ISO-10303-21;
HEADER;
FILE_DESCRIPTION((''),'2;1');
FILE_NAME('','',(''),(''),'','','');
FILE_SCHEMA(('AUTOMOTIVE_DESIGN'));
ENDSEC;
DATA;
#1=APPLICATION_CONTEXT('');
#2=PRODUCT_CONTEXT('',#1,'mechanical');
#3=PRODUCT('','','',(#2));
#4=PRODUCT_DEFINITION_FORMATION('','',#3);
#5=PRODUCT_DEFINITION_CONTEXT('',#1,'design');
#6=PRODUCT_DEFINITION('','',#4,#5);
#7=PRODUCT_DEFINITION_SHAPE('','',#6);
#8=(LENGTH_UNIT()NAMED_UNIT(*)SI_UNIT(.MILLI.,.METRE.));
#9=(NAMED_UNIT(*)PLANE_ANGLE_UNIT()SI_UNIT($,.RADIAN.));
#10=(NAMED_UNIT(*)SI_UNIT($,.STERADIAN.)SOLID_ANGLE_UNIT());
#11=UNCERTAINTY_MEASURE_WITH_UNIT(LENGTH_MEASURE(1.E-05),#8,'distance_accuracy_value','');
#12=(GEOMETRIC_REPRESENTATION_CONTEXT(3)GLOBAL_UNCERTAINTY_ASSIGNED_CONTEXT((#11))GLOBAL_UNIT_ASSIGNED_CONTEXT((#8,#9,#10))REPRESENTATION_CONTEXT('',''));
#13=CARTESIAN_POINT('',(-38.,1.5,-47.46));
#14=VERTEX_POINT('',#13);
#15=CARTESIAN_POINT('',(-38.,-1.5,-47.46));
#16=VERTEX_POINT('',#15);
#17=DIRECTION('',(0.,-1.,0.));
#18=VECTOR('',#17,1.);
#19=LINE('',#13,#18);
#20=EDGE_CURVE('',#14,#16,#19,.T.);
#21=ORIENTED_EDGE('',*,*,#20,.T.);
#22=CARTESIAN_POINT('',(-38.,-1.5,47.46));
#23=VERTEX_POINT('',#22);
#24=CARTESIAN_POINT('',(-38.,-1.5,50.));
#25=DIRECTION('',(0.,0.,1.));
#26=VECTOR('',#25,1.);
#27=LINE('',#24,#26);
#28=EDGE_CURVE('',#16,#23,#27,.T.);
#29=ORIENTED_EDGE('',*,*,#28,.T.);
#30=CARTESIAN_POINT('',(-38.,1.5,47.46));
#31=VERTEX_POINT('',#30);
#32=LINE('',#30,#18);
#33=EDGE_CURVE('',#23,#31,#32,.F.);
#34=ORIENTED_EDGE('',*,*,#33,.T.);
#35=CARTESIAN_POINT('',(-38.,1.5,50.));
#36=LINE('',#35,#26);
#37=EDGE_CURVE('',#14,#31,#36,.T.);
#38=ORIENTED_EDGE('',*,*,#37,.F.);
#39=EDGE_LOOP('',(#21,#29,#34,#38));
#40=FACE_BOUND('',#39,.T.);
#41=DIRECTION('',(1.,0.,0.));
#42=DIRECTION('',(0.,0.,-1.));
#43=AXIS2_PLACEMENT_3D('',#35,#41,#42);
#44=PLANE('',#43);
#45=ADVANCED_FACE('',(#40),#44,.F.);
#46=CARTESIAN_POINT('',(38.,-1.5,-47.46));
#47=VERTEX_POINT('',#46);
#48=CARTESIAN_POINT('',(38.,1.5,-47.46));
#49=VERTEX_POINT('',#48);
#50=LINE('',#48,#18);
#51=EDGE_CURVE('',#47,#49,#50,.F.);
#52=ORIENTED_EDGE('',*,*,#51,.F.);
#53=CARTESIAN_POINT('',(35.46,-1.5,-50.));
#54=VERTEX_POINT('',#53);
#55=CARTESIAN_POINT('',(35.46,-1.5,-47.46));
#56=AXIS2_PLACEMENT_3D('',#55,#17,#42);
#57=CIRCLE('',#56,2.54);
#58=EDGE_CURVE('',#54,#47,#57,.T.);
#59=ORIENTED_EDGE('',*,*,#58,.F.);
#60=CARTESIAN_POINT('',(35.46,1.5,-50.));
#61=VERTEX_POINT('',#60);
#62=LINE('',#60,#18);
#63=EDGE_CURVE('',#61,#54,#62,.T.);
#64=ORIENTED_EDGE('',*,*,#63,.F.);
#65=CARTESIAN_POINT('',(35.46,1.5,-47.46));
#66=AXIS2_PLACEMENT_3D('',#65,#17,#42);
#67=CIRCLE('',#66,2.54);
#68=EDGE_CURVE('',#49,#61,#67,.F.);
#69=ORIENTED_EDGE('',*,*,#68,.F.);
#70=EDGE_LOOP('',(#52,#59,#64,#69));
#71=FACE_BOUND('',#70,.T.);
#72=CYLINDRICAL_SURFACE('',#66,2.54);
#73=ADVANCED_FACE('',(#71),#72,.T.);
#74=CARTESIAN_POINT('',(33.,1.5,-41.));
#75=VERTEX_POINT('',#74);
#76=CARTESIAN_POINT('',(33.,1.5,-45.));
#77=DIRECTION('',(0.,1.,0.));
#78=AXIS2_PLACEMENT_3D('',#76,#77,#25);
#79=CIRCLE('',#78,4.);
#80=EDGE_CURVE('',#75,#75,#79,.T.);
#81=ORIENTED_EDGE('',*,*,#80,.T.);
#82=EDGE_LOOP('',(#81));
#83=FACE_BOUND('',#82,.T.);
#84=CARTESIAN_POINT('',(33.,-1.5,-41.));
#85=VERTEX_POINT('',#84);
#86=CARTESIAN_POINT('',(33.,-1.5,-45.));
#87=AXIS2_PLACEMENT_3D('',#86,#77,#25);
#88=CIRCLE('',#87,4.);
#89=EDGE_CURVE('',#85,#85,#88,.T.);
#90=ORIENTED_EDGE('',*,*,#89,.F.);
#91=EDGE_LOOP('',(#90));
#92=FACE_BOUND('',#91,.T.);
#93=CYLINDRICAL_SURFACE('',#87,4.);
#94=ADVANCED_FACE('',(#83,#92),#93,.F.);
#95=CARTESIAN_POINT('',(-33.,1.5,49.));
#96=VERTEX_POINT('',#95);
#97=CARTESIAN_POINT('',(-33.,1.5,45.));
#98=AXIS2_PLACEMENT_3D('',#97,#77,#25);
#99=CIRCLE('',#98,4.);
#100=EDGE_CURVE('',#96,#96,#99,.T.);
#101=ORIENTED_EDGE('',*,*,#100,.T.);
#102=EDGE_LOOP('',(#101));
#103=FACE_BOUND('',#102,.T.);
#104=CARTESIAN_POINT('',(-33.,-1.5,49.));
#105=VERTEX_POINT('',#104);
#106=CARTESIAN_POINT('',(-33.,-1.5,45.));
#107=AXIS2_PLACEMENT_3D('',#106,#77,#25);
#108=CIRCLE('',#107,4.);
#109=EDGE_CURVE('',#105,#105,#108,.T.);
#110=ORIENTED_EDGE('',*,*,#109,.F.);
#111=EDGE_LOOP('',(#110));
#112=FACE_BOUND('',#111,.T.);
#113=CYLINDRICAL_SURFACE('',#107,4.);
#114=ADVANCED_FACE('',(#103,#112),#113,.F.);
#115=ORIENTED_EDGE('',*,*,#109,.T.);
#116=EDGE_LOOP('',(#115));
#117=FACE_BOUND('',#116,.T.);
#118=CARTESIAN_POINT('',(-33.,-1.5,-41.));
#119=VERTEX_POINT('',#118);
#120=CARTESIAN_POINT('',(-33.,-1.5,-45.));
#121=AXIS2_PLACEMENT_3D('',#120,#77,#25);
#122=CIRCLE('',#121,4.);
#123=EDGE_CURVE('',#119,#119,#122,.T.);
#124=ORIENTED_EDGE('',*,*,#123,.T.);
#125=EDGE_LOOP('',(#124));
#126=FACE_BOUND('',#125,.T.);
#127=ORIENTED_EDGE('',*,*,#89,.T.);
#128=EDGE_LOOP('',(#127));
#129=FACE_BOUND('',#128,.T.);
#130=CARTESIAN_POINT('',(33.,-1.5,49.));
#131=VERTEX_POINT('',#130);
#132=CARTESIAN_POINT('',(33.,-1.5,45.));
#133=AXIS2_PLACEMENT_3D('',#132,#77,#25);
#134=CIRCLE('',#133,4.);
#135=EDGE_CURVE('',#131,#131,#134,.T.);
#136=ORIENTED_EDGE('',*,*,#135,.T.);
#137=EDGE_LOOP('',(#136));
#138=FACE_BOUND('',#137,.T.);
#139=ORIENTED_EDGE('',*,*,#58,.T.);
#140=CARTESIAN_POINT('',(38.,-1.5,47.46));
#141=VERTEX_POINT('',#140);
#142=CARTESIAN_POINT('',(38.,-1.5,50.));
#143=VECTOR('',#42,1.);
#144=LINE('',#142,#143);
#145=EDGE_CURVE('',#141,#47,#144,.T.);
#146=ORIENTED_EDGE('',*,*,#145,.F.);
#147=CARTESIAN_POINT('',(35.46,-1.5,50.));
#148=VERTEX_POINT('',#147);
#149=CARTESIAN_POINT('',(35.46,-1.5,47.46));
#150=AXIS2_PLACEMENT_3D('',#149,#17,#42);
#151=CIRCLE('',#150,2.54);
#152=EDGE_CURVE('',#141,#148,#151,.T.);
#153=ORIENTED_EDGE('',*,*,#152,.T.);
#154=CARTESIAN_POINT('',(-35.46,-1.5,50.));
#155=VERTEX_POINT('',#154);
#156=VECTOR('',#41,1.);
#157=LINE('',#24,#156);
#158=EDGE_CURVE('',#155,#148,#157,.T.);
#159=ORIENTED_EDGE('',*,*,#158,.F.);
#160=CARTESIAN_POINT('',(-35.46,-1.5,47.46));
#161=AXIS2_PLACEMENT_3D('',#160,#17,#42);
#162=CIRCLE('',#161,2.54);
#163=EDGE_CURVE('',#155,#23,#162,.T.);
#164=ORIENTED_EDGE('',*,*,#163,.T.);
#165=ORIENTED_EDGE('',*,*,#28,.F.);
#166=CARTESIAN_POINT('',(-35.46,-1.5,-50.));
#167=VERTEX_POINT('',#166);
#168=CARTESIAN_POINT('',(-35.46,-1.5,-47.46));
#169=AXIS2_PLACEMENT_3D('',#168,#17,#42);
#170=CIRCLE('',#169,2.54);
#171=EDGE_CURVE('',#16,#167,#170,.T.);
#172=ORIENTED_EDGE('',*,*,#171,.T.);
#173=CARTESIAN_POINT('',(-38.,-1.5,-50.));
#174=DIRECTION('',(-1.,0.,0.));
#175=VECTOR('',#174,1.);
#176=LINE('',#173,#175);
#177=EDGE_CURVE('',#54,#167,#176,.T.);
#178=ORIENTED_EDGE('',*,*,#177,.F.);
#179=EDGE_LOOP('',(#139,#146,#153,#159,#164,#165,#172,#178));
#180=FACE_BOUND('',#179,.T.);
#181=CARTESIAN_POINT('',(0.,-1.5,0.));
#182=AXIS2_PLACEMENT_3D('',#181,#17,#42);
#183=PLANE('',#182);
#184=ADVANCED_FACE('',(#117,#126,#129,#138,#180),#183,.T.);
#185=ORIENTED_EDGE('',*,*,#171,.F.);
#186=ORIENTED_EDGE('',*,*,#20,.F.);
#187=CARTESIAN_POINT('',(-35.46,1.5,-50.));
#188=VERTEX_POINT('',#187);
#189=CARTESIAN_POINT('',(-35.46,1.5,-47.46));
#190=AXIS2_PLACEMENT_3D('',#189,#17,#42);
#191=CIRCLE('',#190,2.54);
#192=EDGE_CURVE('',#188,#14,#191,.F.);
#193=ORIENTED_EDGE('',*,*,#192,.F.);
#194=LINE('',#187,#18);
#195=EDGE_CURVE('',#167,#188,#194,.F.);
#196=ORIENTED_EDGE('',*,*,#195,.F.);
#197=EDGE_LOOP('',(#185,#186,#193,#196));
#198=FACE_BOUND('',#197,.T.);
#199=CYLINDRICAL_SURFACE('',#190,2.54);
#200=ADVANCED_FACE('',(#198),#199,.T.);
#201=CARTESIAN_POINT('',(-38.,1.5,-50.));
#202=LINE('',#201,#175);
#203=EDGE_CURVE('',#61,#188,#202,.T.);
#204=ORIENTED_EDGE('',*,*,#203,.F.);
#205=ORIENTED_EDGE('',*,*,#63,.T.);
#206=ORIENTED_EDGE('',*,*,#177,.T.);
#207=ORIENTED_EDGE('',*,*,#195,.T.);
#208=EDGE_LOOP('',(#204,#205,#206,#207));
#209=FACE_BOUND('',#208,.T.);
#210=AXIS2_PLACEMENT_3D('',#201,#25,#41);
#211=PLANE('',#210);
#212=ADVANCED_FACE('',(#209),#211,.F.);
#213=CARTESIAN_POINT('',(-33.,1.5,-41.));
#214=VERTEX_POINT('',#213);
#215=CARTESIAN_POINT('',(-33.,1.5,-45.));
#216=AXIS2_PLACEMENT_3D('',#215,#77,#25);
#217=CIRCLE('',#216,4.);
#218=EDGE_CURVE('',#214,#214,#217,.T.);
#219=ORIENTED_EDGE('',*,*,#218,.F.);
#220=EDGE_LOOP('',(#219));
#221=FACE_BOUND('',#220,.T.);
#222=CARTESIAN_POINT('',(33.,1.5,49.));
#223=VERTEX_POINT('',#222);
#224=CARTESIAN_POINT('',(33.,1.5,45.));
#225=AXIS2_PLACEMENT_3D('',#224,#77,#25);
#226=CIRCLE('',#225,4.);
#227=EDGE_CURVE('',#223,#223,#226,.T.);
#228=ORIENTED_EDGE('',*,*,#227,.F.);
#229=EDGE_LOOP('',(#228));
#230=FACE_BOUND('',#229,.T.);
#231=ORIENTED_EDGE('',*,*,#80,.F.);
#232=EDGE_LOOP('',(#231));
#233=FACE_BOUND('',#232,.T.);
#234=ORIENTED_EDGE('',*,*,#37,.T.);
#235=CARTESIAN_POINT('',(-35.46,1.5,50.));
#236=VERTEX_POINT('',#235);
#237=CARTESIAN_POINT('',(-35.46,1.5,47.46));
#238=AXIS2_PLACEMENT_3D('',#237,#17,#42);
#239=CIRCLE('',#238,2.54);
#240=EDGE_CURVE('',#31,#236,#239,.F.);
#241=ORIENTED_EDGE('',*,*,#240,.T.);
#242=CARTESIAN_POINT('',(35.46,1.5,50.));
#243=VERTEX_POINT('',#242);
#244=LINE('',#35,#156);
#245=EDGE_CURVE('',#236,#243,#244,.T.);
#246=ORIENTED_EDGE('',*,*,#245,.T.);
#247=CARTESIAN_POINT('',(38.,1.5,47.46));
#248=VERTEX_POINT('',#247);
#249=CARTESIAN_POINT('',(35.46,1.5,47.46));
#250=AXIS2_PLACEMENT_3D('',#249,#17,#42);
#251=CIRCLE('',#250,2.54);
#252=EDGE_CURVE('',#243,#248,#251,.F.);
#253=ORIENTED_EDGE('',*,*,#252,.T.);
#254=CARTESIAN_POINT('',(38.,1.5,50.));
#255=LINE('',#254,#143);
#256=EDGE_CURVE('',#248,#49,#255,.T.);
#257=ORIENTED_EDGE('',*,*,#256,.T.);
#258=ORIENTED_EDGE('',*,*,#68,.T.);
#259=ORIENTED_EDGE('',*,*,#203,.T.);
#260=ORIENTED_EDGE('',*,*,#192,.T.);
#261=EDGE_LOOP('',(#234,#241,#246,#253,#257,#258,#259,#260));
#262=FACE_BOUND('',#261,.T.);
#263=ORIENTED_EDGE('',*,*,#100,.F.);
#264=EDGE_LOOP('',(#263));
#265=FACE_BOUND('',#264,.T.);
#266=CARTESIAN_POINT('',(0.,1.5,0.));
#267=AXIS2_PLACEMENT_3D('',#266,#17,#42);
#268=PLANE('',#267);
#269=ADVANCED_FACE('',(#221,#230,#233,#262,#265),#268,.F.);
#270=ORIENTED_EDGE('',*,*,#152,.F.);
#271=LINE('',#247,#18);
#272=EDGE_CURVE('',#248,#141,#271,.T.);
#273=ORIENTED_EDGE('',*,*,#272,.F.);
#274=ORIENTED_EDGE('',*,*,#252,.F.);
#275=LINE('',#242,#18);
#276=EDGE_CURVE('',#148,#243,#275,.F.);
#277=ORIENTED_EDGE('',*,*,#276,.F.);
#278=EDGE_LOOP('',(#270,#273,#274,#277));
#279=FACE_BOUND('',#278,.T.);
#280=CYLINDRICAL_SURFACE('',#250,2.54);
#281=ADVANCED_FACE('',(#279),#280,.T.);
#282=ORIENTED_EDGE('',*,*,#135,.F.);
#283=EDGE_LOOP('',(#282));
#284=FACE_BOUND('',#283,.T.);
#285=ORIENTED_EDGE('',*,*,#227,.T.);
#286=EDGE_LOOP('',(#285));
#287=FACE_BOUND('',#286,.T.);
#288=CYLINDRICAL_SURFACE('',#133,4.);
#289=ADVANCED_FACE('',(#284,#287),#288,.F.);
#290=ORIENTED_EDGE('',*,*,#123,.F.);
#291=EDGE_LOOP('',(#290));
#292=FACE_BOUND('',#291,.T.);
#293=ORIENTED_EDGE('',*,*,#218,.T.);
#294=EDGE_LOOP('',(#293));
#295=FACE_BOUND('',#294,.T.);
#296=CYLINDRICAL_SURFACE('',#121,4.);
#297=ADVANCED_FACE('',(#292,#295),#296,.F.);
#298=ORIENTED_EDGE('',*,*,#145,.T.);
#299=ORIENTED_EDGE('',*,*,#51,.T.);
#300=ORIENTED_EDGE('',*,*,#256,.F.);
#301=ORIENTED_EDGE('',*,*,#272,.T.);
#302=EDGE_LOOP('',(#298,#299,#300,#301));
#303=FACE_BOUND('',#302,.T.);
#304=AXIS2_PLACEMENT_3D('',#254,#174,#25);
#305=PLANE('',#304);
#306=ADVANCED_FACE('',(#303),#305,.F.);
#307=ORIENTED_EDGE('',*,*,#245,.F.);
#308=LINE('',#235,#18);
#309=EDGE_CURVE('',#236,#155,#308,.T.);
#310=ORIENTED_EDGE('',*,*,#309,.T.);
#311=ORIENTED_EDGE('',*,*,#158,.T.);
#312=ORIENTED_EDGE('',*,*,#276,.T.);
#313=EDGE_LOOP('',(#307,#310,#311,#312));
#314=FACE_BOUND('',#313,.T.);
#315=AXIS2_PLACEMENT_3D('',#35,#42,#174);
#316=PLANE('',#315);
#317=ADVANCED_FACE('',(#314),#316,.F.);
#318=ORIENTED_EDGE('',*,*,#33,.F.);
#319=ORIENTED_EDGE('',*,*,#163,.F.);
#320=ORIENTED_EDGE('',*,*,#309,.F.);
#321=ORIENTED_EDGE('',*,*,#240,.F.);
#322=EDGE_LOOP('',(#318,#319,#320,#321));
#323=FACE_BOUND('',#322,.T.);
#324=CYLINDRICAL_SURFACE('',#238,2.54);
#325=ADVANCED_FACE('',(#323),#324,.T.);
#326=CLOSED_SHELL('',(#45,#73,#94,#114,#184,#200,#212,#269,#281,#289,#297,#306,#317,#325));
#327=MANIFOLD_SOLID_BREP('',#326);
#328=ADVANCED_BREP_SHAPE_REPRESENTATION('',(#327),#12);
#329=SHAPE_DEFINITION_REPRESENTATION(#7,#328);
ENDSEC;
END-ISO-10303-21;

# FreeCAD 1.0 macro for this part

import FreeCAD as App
import Part
import Sketcher

V = App.Vector


def edges_at(feature, points):
    """Names of the edges that pass closest to the given points."""
    edges = feature.Shape.Edges
    near = lambda p: min(range(len(edges)), key=lambda i: edges[i].distToShape(Part.Vertex(*p))[0])
    return sorted({f"Edge{near(p) + 1}" for p in points})

doc = App.newDocument("Part")
body = doc.addObject("PartDesign::Body", "Body")

sketch1 = body.newObject("Sketcher::SketchObject", "Sketch")
sketch1.AttachmentSupport = (doc.getObject("XZ_Plane"), [""])
sketch1.MapMode = "FlatFace"
sketch1.addGeometry(Part.LineSegment(V(-38, -50, 0), V(-38, 50, 0)), False)
sketch1.addGeometry(Part.LineSegment(V(-38, 50, 0), V(38, 50, 0)), False)
sketch1.addGeometry(Part.LineSegment(V(38, 50, 0), V(38, -50, 0)), False)
sketch1.addGeometry(Part.LineSegment(V(38, -50, 0), V(-38, -50, 0)), False)
sketch1.addConstraint(Sketcher.Constraint("Coincident", 0, 2, 1, 1))
sketch1.addConstraint(Sketcher.Constraint("Coincident", 1, 2, 2, 1))
sketch1.addConstraint(Sketcher.Constraint("Coincident", 2, 2, 3, 1))
sketch1.addConstraint(Sketcher.Constraint("Coincident", 3, 2, 0, 1))
sketch1.addConstraint(Sketcher.Constraint("Vertical", 0))
sketch1.addConstraint(Sketcher.Constraint("Horizontal", 1))
sketch1.addConstraint(Sketcher.Constraint("Vertical", 2))
sketch1.addConstraint(Sketcher.Constraint("Horizontal", 3))
sketch1.addConstraint(Sketcher.Constraint("Symmetric", 0, 2, 2, 2, -1, 1))
sketch1.addConstraint(Sketcher.Constraint("DistanceX", 1, 1, 1, 2, 76.0))
sketch1.addConstraint(Sketcher.Constraint("DistanceY", 0, 1, 0, 2, 100.0))
pad1 = body.newObject("PartDesign::Pad", "Pad")
pad1.Profile = sketch1
pad1.Length = 3
pad1.Midplane = True
doc.recompute()

fillet = body.newObject("PartDesign::Fillet", "Fillet")
fillet.Base = (pad1, edges_at(pad1, [
    (38, 0, 50),
    (-38, 0, 50),
    (-38, 0, -50),
    (38, 0, -50),
]))
fillet.Radius = 2.54

sketch2 = body.newObject("Sketcher::SketchObject", "Sketch001")
sketch2.AttachmentSupport = (doc.getObject("XZ_Plane"), [""])
sketch2.MapMode = "FlatFace"
sketch2.AttachmentOffset = App.Placement(V(0, 0, -1.5), App.Rotation())
sketch2.addGeometry(Part.Circle(V(-33, -45, 0), V(0, 0, 1), 4), False)
sketch2.addGeometry(Part.Circle(V(33, -45, 0), V(0, 0, 1), 4), False)
sketch2.addGeometry(Part.Circle(V(33, 45, 0), V(0, 0, 1), 4), False)
sketch2.addGeometry(Part.Circle(V(-33, 45, 0), V(0, 0, 1), 4), False)
sketch2.addConstraint(Sketcher.Constraint("Equal", 0, 1))
sketch2.addConstraint(Sketcher.Constraint("Equal", 1, 2))
sketch2.addConstraint(Sketcher.Constraint("Equal", 2, 3))
sketch2.addConstraint(Sketcher.Constraint("Symmetric", 0, 3, 2, 3, -1, 1))
sketch2.addConstraint(Sketcher.Constraint("Symmetric", 1, 3, 3, 3, -1, 1))
sketch2.addConstraint(Sketcher.Constraint("Symmetric", 0, 3, 1, 3, -2))
sketch2.addConstraint(Sketcher.Constraint("Diameter", 0, 8.0))
sketch2.addConstraint(Sketcher.Constraint("DistanceX", 0, 3, -1, 1, 33.0))
sketch2.addConstraint(Sketcher.Constraint("DistanceY", 0, 3, -1, 1, 45.0))
pocket1 = body.newObject("PartDesign::Pocket", "Pocket")
pocket1.Profile = sketch2
pocket1.Type = "ThroughAll"
pocket1.Reversed = True

doc.recompute()
